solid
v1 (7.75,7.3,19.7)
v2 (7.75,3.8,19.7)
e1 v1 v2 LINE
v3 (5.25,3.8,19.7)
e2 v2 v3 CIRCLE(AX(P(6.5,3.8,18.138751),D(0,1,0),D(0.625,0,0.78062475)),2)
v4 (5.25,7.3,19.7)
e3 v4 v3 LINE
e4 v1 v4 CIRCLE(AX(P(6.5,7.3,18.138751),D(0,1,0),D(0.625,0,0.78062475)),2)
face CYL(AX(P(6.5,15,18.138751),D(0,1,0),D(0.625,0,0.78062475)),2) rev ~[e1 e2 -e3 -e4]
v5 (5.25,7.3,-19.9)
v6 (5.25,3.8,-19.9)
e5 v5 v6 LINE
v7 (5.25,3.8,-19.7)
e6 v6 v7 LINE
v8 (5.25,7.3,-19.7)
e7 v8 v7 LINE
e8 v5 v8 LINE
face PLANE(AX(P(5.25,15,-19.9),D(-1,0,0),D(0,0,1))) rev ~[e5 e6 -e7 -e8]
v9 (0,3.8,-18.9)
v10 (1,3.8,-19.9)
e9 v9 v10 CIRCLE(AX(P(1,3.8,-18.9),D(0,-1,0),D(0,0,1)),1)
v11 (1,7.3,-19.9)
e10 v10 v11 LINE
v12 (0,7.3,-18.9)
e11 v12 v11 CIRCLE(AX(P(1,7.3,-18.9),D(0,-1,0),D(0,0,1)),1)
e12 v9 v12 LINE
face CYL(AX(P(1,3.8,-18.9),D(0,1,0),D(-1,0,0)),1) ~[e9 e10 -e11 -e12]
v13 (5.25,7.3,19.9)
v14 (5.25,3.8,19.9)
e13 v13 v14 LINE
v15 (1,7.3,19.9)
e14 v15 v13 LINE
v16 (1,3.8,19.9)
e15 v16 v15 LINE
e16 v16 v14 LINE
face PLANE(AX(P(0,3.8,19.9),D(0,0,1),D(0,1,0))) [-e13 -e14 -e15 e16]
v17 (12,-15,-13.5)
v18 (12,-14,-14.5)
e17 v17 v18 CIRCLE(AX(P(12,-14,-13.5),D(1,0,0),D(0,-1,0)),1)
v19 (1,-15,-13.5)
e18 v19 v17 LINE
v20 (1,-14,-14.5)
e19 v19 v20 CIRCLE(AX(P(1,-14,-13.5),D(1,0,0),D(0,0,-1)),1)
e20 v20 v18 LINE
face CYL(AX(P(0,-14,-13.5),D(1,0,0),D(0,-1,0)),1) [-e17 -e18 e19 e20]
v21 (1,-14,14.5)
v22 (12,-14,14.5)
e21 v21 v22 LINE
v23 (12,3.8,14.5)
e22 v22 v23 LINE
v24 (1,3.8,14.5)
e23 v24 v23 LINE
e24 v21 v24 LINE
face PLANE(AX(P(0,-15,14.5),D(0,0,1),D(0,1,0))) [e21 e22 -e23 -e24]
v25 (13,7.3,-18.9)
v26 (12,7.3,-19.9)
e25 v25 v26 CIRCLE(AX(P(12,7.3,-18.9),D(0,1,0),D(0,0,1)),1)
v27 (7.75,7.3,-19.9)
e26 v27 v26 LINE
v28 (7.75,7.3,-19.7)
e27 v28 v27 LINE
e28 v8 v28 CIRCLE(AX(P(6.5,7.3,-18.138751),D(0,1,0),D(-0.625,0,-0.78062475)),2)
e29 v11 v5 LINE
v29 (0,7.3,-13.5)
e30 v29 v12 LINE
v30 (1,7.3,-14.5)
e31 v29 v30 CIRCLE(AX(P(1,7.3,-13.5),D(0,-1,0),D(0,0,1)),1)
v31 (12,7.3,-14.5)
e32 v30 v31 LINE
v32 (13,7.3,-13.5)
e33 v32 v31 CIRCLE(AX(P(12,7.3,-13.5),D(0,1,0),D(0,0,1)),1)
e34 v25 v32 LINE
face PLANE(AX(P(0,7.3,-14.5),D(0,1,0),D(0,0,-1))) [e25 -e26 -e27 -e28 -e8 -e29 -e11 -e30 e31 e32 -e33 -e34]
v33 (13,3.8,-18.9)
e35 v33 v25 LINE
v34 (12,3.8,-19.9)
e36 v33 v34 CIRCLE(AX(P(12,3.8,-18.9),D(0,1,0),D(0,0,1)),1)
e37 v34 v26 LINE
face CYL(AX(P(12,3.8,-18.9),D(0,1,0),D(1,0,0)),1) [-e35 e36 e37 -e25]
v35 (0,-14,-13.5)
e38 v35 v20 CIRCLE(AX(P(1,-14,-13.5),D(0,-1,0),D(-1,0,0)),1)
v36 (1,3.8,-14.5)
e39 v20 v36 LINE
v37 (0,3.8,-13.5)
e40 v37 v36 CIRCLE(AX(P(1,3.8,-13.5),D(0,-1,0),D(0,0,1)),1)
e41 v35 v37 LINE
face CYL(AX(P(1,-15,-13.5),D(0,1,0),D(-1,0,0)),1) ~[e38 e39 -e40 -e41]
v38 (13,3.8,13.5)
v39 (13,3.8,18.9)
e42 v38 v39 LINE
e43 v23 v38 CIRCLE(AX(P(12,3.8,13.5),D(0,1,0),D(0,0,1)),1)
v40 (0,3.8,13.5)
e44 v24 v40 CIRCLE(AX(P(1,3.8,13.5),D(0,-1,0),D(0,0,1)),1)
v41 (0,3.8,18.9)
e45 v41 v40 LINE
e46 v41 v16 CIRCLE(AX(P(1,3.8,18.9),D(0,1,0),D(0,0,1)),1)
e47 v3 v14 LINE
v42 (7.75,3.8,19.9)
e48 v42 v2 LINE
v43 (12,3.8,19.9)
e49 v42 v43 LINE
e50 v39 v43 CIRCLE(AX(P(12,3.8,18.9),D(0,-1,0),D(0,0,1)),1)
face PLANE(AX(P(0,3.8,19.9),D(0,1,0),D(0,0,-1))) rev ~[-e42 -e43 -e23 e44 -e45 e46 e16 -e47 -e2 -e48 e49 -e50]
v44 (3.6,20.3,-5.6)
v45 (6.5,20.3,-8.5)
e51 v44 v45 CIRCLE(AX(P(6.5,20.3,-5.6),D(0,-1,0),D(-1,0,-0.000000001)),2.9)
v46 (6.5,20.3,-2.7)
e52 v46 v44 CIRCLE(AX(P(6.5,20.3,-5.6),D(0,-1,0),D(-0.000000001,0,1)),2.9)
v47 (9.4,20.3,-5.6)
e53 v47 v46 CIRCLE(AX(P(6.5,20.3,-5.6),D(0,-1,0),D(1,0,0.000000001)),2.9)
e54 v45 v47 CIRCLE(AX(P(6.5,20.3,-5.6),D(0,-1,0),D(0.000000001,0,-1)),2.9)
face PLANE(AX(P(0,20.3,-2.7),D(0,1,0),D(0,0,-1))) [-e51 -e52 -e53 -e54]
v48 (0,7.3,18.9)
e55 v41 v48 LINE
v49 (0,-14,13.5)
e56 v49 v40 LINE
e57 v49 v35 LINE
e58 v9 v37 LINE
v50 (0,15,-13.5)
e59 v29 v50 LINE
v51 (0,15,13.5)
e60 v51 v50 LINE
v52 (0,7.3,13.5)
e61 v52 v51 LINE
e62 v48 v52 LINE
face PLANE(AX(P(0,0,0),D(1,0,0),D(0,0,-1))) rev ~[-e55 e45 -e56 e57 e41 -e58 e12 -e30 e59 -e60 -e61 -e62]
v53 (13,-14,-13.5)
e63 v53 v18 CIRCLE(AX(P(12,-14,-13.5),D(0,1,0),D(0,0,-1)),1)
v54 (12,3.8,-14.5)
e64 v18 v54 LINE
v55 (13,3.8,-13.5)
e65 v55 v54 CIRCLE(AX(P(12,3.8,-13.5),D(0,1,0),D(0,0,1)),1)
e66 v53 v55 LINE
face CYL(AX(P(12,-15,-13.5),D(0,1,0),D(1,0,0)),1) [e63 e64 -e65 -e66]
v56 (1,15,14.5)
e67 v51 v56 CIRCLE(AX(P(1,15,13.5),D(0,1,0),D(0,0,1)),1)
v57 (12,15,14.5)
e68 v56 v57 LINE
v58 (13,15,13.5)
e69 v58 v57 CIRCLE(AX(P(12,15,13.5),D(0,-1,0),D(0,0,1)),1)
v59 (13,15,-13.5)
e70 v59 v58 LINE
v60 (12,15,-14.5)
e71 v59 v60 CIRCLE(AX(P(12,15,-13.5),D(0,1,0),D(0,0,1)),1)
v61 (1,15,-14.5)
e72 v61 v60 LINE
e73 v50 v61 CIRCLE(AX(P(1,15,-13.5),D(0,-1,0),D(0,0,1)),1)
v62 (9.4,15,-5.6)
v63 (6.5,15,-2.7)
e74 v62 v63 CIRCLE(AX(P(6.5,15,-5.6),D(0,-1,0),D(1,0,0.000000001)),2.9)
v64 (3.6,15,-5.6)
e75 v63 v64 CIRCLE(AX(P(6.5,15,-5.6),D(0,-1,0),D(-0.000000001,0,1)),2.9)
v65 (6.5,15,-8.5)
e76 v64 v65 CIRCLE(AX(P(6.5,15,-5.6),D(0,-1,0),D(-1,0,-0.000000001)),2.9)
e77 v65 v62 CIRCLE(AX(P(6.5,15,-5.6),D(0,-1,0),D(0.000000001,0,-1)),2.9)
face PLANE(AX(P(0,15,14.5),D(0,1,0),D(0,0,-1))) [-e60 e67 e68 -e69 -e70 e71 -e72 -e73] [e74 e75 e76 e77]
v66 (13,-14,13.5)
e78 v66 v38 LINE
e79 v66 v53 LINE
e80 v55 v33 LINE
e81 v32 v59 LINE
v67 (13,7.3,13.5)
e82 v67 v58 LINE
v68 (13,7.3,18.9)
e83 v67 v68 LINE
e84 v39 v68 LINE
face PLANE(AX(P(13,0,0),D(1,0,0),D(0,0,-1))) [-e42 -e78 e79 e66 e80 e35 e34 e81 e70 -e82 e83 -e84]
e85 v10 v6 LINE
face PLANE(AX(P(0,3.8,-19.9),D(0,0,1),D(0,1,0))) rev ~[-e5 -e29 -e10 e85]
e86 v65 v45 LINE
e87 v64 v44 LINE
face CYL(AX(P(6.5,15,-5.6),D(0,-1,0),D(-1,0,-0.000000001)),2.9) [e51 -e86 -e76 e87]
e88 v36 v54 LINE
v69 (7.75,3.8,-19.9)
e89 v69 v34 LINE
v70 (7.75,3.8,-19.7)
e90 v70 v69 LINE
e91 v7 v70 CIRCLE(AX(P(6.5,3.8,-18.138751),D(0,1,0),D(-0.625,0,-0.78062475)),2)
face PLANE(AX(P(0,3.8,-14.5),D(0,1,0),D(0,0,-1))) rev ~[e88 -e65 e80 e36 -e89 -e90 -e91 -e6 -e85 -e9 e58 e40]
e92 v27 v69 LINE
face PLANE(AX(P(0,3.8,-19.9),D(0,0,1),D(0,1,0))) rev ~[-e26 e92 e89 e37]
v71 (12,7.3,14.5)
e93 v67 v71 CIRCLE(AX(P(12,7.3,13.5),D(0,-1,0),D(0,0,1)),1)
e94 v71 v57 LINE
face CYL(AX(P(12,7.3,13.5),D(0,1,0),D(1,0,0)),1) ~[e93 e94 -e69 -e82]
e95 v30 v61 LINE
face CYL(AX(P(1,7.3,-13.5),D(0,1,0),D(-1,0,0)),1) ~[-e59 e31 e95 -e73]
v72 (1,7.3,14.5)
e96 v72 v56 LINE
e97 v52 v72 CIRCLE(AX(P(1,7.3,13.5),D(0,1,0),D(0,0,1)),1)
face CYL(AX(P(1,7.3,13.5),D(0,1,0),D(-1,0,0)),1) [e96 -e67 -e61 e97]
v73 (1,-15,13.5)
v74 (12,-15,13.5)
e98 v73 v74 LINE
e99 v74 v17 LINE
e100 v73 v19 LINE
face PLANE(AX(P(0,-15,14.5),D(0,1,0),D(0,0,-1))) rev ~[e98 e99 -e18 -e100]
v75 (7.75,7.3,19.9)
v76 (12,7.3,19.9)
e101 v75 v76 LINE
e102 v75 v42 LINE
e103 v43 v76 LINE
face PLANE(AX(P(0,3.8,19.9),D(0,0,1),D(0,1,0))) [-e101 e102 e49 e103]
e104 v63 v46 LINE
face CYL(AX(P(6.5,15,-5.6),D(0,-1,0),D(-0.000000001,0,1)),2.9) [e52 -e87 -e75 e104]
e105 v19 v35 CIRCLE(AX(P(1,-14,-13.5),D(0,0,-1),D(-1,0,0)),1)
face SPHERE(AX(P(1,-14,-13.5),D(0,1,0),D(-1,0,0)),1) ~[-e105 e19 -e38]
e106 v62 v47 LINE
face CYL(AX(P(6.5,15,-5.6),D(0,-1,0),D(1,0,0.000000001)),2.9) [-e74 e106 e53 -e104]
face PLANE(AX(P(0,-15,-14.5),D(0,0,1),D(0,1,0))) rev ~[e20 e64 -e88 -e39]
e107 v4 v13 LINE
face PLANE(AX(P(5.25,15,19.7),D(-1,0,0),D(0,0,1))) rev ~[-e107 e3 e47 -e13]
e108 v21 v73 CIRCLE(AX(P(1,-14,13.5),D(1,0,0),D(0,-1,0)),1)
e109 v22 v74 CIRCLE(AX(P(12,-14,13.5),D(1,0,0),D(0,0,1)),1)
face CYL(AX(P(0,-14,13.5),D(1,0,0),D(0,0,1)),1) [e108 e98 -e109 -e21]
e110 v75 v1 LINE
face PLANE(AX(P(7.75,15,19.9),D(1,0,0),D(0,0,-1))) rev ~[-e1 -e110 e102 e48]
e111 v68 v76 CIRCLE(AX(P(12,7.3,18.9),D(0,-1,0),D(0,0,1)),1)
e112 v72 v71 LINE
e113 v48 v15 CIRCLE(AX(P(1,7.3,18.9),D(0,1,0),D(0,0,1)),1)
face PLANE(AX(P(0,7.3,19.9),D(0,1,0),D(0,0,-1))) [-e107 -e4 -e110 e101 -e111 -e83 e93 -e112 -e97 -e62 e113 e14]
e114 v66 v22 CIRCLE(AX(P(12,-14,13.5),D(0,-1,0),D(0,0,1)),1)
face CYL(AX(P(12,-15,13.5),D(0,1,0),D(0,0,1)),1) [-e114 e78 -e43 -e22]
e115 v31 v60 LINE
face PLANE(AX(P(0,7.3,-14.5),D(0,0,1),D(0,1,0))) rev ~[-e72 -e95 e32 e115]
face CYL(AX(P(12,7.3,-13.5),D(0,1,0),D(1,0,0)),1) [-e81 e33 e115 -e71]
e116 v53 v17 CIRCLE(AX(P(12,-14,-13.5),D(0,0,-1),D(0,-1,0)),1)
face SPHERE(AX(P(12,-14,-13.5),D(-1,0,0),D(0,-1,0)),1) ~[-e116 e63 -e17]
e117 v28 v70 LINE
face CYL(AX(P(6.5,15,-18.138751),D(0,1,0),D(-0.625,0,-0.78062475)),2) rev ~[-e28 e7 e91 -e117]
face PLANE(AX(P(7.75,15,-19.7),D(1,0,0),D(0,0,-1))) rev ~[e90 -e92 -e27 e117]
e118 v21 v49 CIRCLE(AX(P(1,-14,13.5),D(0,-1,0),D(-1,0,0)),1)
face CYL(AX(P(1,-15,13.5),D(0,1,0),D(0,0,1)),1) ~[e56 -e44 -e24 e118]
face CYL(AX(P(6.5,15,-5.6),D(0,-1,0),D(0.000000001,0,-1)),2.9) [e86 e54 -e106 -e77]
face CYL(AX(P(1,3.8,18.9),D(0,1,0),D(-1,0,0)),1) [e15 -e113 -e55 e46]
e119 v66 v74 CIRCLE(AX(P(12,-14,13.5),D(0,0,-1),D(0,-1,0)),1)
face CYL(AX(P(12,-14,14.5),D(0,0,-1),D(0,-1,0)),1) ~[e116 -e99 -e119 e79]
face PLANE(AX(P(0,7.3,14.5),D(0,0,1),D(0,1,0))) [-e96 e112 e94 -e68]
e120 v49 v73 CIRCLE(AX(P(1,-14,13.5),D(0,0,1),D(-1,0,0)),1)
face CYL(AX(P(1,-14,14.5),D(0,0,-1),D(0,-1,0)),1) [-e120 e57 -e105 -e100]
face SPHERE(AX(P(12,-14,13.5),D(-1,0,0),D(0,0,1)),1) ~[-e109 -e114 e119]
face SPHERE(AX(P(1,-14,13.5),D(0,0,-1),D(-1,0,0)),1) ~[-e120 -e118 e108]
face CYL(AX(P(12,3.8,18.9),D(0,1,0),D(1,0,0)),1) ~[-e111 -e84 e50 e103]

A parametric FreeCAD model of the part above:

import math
import FreeCAD as App
import Part
import Sketcher

V = App.Vector


def edges_at(feature, points):
    """Names of the edges that pass closest to the given points."""
    edges = feature.Shape.Edges
    near = lambda p: min(range(len(edges)), key=lambda i: edges[i].distToShape(Part.Vertex(*p))[0])
    return sorted({f"Edge{near(p) + 1}" for p in points})


def add_polygon(sketch, points):
    """Adds a closed chain of lines whose ends are joined by coincident constraints."""
    first, n = sketch.GeometryCount, len(points)
    for a, b in zip(points, points[1:] + points[:1]):
        sketch.addGeometry(Part.LineSegment(App.Vector(*a, 0), App.Vector(*b, 0)), False)
    for i in range(n):
        sketch.addConstraint(Sketcher.Constraint("Coincident", first + i, 2, first + (i + 1) % n, 1))

doc = App.newDocument("Part")
body = doc.addObject("PartDesign::Body", "Body")

sketch1 = doc.addObject("Sketcher::SketchObject", "Sketch")
body.addObject(sketch1)
sketch1.AttachmentSupport = (doc.YZ_Plane, [""])
sketch1.MapMode = "FlatFace"
add_polygon(sketch1, [(3.8, 14.5), (-15, 14.5), (-15, -14.5), (3.8, -14.5), (3.8, -19.9), (7.3, -19.9), (7.3, -14.5), (15, -14.5), (15, -8.5), (20.3, -8.5), (20.3, -2.7), (15, -2.7), (15, 14.5), (7.3, 14.5), (7.3, 19.9), (3.8, 19.9)])
sketch1.addConstraint([
    Sketcher.Constraint("Horizontal", 0),
    Sketcher.Constraint("Vertical", 1),
    Sketcher.Constraint("Horizontal", 2),
    Sketcher.Constraint("Vertical", 3),
    Sketcher.Constraint("Horizontal", 4),
    Sketcher.Constraint("Vertical", 5),
    Sketcher.Constraint("Horizontal", 6),
    Sketcher.Constraint("Vertical", 7),
    Sketcher.Constraint("Horizontal", 8),
    Sketcher.Constraint("Vertical", 9),
    Sketcher.Constraint("Horizontal", 10),
    Sketcher.Constraint("Vertical", 11),
    Sketcher.Constraint("Horizontal", 12),
    Sketcher.Constraint("Vertical", 13),
    Sketcher.Constraint("Horizontal", 14),
    Sketcher.Constraint("Vertical", 15),
    Sketcher.Constraint("Symmetric", 0, 2, 6, 2, -1, 1),
    Sketcher.Constraint("Symmetric", 1, 2, 11, 2, -1, 1),
    Sketcher.Constraint("Symmetric", 5, 2, 12, 2, -1),
    Sketcher.Constraint("Symmetric", 3, 2, 14, 2, -1),
    Sketcher.Constraint("DistanceY", 1, 2, 1, 1, 29.0),
    Sketcher.Constraint("DistanceY", 7, 1, 7, 2, 6.0),
    Sketcher.Constraint("DistanceX", 0, 2, 0, 1, 18.8),
    Sketcher.Constraint("DistanceX", 4, 1, 4, 2, 3.5),
    Sketcher.Constraint("DistanceX", 6, 1, 6, 2, 7.7),
    Sketcher.Constraint("DistanceX", 8, 1, 8, 2, 5.3),
    Sketcher.Constraint("DistanceY", 3, 2, 3, 1, 5.4),
    Sketcher.Constraint("DistanceY", 9, 1, 9, 2, 5.8),
])
pad1 = doc.addObject("PartDesign::Pad", "Pad")
body.addObject(pad1)
pad1.Profile = sketch1
pad1.Length = 13

sketch2 = doc.addObject("Sketcher::SketchObject", "Sketch001")
body.addObject(sketch2)
sketch2.AttachmentSupport = (doc.XZ_Plane, [""])
sketch2.MapMode = "FlatFace"
sketch2.AttachmentOffset = App.Placement(V(0, 0, -15), App.Rotation())
sketch2.addGeometry([
    Part.LineSegment(V(6.5, -2.7, 0), V(13, -2.7, 0)),
    Part.LineSegment(V(13, -2.7, 0), V(13, -8.5, 0)),
    Part.LineSegment(V(13, -8.5, 0), V(6.5, -8.5, 0)),
    Part.ArcOfCircle(Part.Circle(V(6.5, -5.6, 0), V(0, 0, 1), 2.9), math.radians(-90), math.radians(0)),
    Part.ArcOfCircle(Part.Circle(V(6.5, -5.6, 0), V(0, 0, 1), 2.9), math.radians(0), math.radians(90)),
    Part.ArcOfCircle(Part.Circle(V(6.5, -5.6, 0), V(0, 0, 1), 2.9), math.radians(-180), math.radians(-90)),
    Part.LineSegment(V(6.5, -8.5, 0), V(0, -8.5, 0)),
    Part.LineSegment(V(0, -8.5, 0), V(0, -2.7, 0)),
    Part.LineSegment(V(0, -2.7, 0), V(6.5, -2.7, 0)),
    Part.ArcOfCircle(Part.Circle(V(6.5, -5.6, 0), V(0, 0, 1), 2.9), math.radians(90), math.radians(180)),
    Part.LineSegment(V(7.75, -19.7, 0), V(7.75, -19.9, 0)),
    Part.LineSegment(V(7.75, -19.9, 0), V(5.25, -19.9, 0)),
    Part.LineSegment(V(5.25, -19.9, 0), V(5.25, -19.7, 0)),
    Part.ArcOfCircle(Part.Circle(V(6.5, -18.14, 0), V(0, 0, 1), 2), math.radians(-51), math.radians(231)),
    Part.LineSegment(V(5.25, 19.9, 0), V(7.75, 19.9, 0)),
    Part.LineSegment(V(7.75, 19.9, 0), V(7.75, 19.7, 0)),
    Part.ArcOfCircle(Part.Circle(V(6.5, 18.14, 0), V(0, 0, 1), 2), math.radians(129), math.radians(411)),
    Part.LineSegment(V(5.25, 19.7, 0), V(5.25, 19.9, 0)),
], False)
sketch2.addConstraint([
    Sketcher.Constraint("Coincident", 0, 2, 1, 1),
    Sketcher.Constraint("Coincident", 1, 2, 2, 1),
    Sketcher.Constraint("Tangent", 2, 2, 3, 1),
    Sketcher.Constraint("Tangent", 3, 2, 4, 1),
    Sketcher.Constraint("Tangent", 4, 2, 0, 1),
    Sketcher.Constraint("Tangent", 5, 2, 6, 1),
    Sketcher.Constraint("Coincident", 6, 2, 7, 1),
    Sketcher.Constraint("Coincident", 7, 2, 8, 1),
    Sketcher.Constraint("Tangent", 8, 2, 9, 1),
    Sketcher.Constraint("Tangent", 9, 2, 5, 1),
    Sketcher.Constraint("Coincident", 10, 2, 11, 1),
    Sketcher.Constraint("Coincident", 11, 2, 12, 1),
    Sketcher.Constraint("Coincident", 12, 2, 13, 2),
    Sketcher.Constraint("Coincident", 13, 1, 10, 1),
    Sketcher.Constraint("Coincident", 14, 2, 15, 1),
    Sketcher.Constraint("Coincident", 15, 2, 16, 2),
    Sketcher.Constraint("Coincident", 16, 1, 17, 1),
    Sketcher.Constraint("Coincident", 17, 2, 14, 1),
    Sketcher.Constraint("Horizontal", 0),
    Sketcher.Constraint("Vertical", 1),
    Sketcher.Constraint("Horizontal", 2),
    Sketcher.Constraint("Horizontal", 6),
    Sketcher.Constraint("Vertical", 7),
    Sketcher.Constraint("Horizontal", 8),
    Sketcher.Constraint("Vertical", 10),
    Sketcher.Constraint("Horizontal", 11),
    Sketcher.Constraint("Vertical", 12),
    Sketcher.Constraint("Horizontal", 14),
    Sketcher.Constraint("Vertical", 15),
    Sketcher.Constraint("Vertical", 17),
    Sketcher.Constraint("Coincident", 5, 3, 3, 3),
    Sketcher.Constraint("Coincident", 8, 2, 4, 2),
    Sketcher.Constraint("Equal", 3, 4),
    Sketcher.Constraint("Equal", 13, 16),
    Sketcher.Constraint("Symmetric", 13, 3, 16, 3, -1),
    Sketcher.Constraint("Symmetric", 10, 2, 14, 2, -1),
    Sketcher.Constraint("PointOnObject", 6, 2, -2),
    Sketcher.Constraint("Horizontal", 9, 3, 3, 2),
    Sketcher.Constraint("Horizontal", 3, 2, 9, 2),
    Sketcher.Constraint("Horizontal", 12, 2, 13, 1),
    Sketcher.Constraint("Horizontal", 15, 2, 16, 1),
    Sketcher.Constraint("Vertical", 9, 3, 13, 3),
    Sketcher.Constraint("Equal", 2, 6),
    Sketcher.Constraint("Radius", 13, 2.0),
    Sketcher.Constraint("Radius", 3, 2.9),
    Sketcher.Constraint("DistanceX", 0, 1, 0, 2, 6.5),
    Sketcher.Constraint("DistanceX", 11, 2, 11, 1, 2.5),
    Sketcher.Constraint("DistanceY", 10, 2, 10, 1, 0.2),
    Sketcher.Constraint("DistanceY", 3, 3, -1, 1, 5.6),
    Sketcher.Constraint("DistanceY", 10, 2, -1, 1, 19.9),
])
pocket1 = doc.addObject("PartDesign::Pocket", "Pocket")
body.addObject(pocket1)
pocket1.Profile = sketch2
pocket1.Length = 5.3

sketch3 = doc.addObject("Sketcher::SketchObject", "Sketch002")
body.addObject(sketch3)
sketch3.AttachmentSupport = (doc.XZ_Plane, [""])
sketch3.MapMode = "FlatFace"
sketch3.AttachmentOffset = App.Placement(V(0, 0, -15), App.Rotation())
sketch3.addGeometry([
    Part.LineSegment(V(7.75, -19.7, 0), V(7.75, -19.9, 0)),
    Part.LineSegment(V(7.75, -19.9, 0), V(5.25, -19.9, 0)),
    Part.LineSegment(V(5.25, -19.9, 0), V(5.25, -19.7, 0)),
    Part.ArcOfCircle(Part.Circle(V(6.5, -18.14, 0), V(0, 0, 1), 2), math.radians(-51), math.radians(231)),
    Part.LineSegment(V(5.25, 19.9, 0), V(7.75, 19.9, 0)),
    Part.LineSegment(V(7.75, 19.9, 0), V(7.75, 19.7, 0)),
    Part.ArcOfCircle(Part.Circle(V(6.5, 18.14, 0), V(0, 0, 1), 2), math.radians(129), math.radians(411)),
    Part.LineSegment(V(5.25, 19.7, 0), V(5.25, 19.9, 0)),
], False)
sketch3.addConstraint([
    Sketcher.Constraint("Coincident", 0, 2, 1, 1),
    Sketcher.Constraint("Coincident", 1, 2, 2, 1),
    Sketcher.Constraint("Coincident", 2, 2, 3, 2),
    Sketcher.Constraint("Coincident", 3, 1, 0, 1),
    Sketcher.Constraint("Coincident", 4, 2, 5, 1),
    Sketcher.Constraint("Coincident", 5, 2, 6, 2),
    Sketcher.Constraint("Coincident", 6, 1, 7, 1),
    Sketcher.Constraint("Coincident", 7, 2, 4, 1),
    Sketcher.Constraint("Vertical", 0),
    Sketcher.Constraint("Horizontal", 1),
    Sketcher.Constraint("Vertical", 2),
    Sketcher.Constraint("Horizontal", 4),
    Sketcher.Constraint("Vertical", 5),
    Sketcher.Constraint("Vertical", 7),
    Sketcher.Constraint("Equal", 3, 6),
    Sketcher.Constraint("Symmetric", 3, 3, 6, 3, -1),
    Sketcher.Constraint("Symmetric", 0, 2, 4, 2, -1),
    Sketcher.Constraint("Horizontal", 2, 2, 3, 1),
    Sketcher.Constraint("Horizontal", 5, 2, 6, 1),
    Sketcher.Constraint("Radius", 3, 2.0),
    Sketcher.Constraint("DistanceX", 1, 2, 1, 1, 2.5),
    Sketcher.Constraint("DistanceY", 0, 2, 0, 1, 0.2),
    Sketcher.Constraint("DistanceX", -1, 1, 3, 3, 6.5),
    Sketcher.Constraint("DistanceY", 0, 2, -1, 1, 19.9),
])
pocket2 = doc.addObject("PartDesign::Pocket", "Pocket001")
body.addObject(pocket2)
pocket2.Profile = sketch3
pocket2.Type = "ThroughAll"
pocket2.Reversed = True
doc.recompute()

fillet = doc.addObject("PartDesign::Fillet", "Fillet")
body.addObject(fillet)
fillet.Base = (pocket2, edges_at(pocket2, [
    (0, 5.55, -19.9),
    (0, -5.6, -14.5),
    (0, -15, 0),
    (0, -5.6, 14.5),
    (0, 5.55, 19.9),
    (0, 11.15, 14.5),
    (0, 11.15, -14.5),
    (6.5, -15, -14.5),
    (6.5, -15, 14.5),
    (13, 11.15, 14.5),
    (13, 5.55, 19.9),
    (13, 11.15, -14.5),
    (13, -5.6, 14.5),
    (13, -15, 0),
    (13, -5.6, -14.5),
    (13, 5.55, -19.9),
]))
fillet.Radius = 1

doc.recompute()
